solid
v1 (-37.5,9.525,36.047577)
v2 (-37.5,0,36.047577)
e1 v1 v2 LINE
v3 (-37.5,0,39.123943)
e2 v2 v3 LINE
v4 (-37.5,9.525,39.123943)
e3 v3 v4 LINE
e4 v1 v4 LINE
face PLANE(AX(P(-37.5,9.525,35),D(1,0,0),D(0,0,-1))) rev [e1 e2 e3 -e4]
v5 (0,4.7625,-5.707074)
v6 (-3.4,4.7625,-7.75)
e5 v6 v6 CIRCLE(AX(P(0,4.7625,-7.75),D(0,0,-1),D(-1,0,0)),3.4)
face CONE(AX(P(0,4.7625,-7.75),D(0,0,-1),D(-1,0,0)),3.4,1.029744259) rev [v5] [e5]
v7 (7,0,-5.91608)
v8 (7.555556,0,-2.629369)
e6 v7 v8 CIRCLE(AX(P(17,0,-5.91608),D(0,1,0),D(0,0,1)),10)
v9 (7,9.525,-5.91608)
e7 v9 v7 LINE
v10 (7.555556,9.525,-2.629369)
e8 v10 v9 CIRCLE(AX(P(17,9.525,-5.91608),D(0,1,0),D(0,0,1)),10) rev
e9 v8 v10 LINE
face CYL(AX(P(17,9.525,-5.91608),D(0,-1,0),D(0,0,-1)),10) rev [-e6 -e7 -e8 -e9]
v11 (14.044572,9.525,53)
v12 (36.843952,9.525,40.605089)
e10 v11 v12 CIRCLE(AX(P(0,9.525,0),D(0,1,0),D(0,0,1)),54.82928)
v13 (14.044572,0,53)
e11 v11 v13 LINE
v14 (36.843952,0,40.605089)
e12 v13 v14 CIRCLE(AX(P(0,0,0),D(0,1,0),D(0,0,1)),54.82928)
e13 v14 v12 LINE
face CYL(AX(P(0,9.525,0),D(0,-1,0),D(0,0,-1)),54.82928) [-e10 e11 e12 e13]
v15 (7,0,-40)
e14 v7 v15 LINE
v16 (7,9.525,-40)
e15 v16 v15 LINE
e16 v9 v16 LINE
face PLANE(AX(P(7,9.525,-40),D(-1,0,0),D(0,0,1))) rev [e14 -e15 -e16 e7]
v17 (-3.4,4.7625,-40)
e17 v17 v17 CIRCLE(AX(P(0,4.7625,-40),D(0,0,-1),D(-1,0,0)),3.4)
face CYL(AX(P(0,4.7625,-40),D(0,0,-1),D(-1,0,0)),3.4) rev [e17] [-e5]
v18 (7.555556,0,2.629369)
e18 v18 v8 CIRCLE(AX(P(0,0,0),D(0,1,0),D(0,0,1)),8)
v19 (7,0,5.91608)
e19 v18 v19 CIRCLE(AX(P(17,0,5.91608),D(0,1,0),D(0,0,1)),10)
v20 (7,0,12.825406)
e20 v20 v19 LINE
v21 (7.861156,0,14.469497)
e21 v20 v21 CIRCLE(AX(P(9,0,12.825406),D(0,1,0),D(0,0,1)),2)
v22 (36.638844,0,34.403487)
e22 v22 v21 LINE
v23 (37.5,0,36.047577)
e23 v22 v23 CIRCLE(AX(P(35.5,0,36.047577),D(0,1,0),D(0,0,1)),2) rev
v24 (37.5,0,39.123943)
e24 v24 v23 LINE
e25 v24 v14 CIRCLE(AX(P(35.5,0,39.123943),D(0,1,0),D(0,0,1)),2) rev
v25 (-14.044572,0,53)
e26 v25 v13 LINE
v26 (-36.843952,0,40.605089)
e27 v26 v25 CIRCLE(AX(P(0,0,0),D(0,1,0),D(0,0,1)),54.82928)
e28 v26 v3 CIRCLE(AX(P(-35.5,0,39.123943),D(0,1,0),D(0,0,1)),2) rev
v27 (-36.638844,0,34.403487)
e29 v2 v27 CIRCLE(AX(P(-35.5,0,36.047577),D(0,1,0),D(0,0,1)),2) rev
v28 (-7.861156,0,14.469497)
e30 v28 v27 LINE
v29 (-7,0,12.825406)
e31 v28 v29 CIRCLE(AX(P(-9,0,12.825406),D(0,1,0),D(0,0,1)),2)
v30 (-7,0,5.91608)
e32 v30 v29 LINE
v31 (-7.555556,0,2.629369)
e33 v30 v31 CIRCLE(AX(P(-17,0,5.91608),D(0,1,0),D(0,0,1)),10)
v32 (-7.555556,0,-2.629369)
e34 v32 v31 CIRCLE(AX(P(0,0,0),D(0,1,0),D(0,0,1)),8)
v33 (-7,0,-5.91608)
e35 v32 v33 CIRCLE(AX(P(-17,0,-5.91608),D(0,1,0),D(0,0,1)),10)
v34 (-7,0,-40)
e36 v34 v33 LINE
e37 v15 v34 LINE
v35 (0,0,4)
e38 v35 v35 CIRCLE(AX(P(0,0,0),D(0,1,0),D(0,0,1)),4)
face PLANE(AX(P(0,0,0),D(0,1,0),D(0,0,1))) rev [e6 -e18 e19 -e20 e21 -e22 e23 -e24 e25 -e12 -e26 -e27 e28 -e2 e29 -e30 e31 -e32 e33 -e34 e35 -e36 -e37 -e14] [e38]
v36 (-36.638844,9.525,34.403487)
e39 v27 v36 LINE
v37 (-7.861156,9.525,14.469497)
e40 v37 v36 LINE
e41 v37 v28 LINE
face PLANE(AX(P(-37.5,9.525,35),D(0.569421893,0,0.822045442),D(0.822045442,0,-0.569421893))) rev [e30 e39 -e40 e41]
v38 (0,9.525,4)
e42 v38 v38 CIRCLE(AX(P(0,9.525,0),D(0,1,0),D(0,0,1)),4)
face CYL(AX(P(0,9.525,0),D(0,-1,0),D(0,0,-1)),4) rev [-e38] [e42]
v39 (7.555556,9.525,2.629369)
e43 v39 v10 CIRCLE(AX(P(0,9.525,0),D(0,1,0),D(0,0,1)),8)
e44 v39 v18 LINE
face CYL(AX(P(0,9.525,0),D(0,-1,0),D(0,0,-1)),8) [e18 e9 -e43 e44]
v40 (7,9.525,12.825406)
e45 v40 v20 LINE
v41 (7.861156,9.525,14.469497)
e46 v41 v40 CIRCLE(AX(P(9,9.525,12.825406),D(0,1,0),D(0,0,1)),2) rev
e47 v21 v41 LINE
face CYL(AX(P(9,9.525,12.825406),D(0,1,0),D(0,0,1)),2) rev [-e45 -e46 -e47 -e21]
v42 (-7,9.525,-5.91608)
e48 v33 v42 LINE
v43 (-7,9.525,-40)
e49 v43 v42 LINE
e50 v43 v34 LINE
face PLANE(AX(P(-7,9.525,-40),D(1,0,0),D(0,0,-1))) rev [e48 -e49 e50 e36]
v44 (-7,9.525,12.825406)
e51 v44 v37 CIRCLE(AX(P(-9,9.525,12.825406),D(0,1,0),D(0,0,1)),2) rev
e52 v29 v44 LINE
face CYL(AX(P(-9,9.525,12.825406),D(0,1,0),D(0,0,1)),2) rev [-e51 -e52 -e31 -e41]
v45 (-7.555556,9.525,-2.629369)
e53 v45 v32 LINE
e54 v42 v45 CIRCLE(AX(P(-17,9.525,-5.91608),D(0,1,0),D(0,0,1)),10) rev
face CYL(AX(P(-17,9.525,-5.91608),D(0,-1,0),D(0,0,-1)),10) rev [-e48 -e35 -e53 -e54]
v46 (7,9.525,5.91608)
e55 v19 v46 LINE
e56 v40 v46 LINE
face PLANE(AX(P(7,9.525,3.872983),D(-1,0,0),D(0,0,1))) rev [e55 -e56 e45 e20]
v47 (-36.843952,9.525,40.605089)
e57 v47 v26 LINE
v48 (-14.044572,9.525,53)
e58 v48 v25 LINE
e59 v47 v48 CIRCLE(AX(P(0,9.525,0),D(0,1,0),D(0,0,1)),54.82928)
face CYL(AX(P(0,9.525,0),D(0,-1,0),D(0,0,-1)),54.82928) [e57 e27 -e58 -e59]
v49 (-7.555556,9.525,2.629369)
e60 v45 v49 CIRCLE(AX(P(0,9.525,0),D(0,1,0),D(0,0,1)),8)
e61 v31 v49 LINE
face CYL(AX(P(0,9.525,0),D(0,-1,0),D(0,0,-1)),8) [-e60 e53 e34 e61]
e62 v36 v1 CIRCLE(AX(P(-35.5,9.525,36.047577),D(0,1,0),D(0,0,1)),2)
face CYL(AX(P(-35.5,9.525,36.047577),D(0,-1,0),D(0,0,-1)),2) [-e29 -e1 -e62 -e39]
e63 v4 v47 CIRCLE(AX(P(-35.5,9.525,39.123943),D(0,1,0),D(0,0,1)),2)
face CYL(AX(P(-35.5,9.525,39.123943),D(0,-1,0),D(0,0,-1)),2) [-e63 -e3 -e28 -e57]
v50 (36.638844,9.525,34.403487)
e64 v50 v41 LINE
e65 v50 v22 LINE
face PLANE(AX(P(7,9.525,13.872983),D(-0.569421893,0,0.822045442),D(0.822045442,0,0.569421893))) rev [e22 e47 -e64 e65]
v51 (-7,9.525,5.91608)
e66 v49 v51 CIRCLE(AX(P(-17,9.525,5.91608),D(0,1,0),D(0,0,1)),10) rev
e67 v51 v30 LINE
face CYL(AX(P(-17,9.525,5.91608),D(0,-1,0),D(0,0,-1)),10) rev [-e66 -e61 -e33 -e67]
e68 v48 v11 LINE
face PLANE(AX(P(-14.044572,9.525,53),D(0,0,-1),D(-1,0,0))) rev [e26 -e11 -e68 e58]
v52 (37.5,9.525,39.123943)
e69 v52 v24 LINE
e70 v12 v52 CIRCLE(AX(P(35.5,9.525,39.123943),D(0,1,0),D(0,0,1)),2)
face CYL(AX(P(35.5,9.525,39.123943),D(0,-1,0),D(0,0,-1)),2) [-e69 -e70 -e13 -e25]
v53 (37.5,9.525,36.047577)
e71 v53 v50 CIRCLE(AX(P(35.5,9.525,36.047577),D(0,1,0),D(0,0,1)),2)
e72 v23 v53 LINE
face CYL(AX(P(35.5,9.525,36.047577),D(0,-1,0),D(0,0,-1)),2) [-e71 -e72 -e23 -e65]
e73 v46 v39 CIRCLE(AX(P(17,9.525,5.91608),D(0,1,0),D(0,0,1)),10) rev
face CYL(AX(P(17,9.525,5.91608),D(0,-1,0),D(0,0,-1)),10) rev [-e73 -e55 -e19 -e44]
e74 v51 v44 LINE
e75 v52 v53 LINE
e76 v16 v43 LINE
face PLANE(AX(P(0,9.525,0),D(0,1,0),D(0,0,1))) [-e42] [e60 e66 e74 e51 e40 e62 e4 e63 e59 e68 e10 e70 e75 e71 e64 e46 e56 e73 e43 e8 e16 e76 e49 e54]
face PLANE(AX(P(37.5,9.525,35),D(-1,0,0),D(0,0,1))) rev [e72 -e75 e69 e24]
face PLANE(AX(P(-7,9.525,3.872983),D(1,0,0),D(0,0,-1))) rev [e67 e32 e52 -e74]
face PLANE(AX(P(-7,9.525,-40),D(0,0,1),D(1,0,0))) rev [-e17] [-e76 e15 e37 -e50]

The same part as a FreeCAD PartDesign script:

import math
import FreeCAD as App
import Part
import Sketcher
Q = App.Units.Quantity


def edges_at(feature, points):
    """Names of the edges that pass closest to the given points."""
    edges = feature.Shape.Edges
    near = lambda p: min(range(len(edges)), key=lambda i: edges[i].distToShape(Part.Vertex(*p))[0])
    return sorted({f"Edge{near(p) + 1}" for p in points})

doc = App.newDocument("Part")
params = doc.addObject("Spreadsheet::Sheet", "Params")
for row, (alias, value) in enumerate([
    ("sketch1_diameter", "8 mm"),
    ("sketch1_radius", "8 mm"),
    ("sketch1_width", "14 mm"),
    ("sketch1_height", "10 mm"),
    ("sketch1_height2", "5 mm"),
    ("pad1_length", "9.525 mm"),
    ("fillet_radius", "10 mm"),
    ("sketch2_diameter", "6.8 mm"),
    ("hole_diameter", "6.8 mm"),
    ("hole_depth", "32.25 mm"),
    ("fillet2_radius", "2 mm"),
], start=1):
    params.set(f"A{row}", alias)
    params.set(f"B{row}", "=" + value)
    params.setAlias(f"B{row}", alias)

body = doc.addObject("PartDesign::Body", "Body")

# Sketch on XZ plane
sketch1 = body.newObject("Sketcher::SketchObject", "Sketch")
sketch1.AttachmentSupport = (doc.getObject("XZ_Plane"), [""])
sketch1.MapMode = "FlatFace"
sketch1.addGeometry([
    Part.LineSegment(App.Vector(7, -40, 0), App.Vector(-7, -40, 0)),  # 0
    Part.LineSegment(App.Vector(-7, -40, 0), App.Vector(-7, -3.9, 0)),  # 1
    Part.ArcOfCircle(Part.Circle(App.Vector(0, 0, 0), App.Vector(0, 0, 1), 8), math.radians(151), math.radians(209)),  # 2
    Part.LineSegment(App.Vector(-7, 3.9, 0), App.Vector(-7, 13.9, 0)),  # 3
    Part.LineSegment(App.Vector(-7, 13.9, 0), App.Vector(-37.5, 35, 0)),  # 4
    Part.LineSegment(App.Vector(-37.5, 35, 0), App.Vector(-37.5, 40, 0)),  # 5
    Part.ArcOfCircle(Part.Circle(App.Vector(0, 0, 0), App.Vector(0, 0, 1), 54.8), math.radians(105), math.radians(133)),  # 6
    Part.LineSegment(App.Vector(-14, 53, 0), App.Vector(14, 53, 0)),  # 7
    Part.ArcOfCircle(Part.Circle(App.Vector(0, 0, 0), App.Vector(0, 0, 1), 54.8), math.radians(47), math.radians(75)),  # 8
    Part.LineSegment(App.Vector(37.5, 40, 0), App.Vector(37.5, 35, 0)),  # 9
    Part.LineSegment(App.Vector(37.5, 35, 0), App.Vector(7, 13.9, 0)),  # 10
    Part.LineSegment(App.Vector(7, 13.9, 0), App.Vector(7, 3.9, 0)),  # 11
    Part.ArcOfCircle(Part.Circle(App.Vector(0, 0, 0), App.Vector(0, 0, 1), 8), math.radians(-29), math.radians(29)),  # 12
    Part.LineSegment(App.Vector(7, -3.9, 0), App.Vector(7, -40, 0)),  # 13
    Part.Circle(App.Vector(0, 0, 0), App.Vector(0, 0, 1), 4),  # 14
], False)
sketch1.addConstraint([
    Sketcher.Constraint("Coincident", 0, 2, 1, 1),
    Sketcher.Constraint("Coincident", 1, 2, 2, 2),
    Sketcher.Constraint("Coincident", 2, 1, 3, 1),
    Sketcher.Constraint("Coincident", 3, 2, 4, 1),
    Sketcher.Constraint("Coincident", 4, 2, 5, 1),
    Sketcher.Constraint("Coincident", 5, 2, 6, 2),
    Sketcher.Constraint("Coincident", 6, 1, 7, 1),
    Sketcher.Constraint("Coincident", 7, 2, 8, 2),
    Sketcher.Constraint("Coincident", 8, 1, 9, 1),
    Sketcher.Constraint("Coincident", 9, 2, 10, 1),
    Sketcher.Constraint("Coincident", 10, 2, 11, 1),
    Sketcher.Constraint("Coincident", 11, 2, 12, 2),
    Sketcher.Constraint("Coincident", 12, 1, 13, 1),
    Sketcher.Constraint("Coincident", 13, 2, 0, 1),
    Sketcher.Constraint("Horizontal", 0),
    Sketcher.Constraint("Vertical", 1),
    Sketcher.Constraint("Vertical", 3),
    Sketcher.Constraint("Vertical", 5),
    Sketcher.Constraint("Horizontal", 7),
    Sketcher.Constraint("Vertical", 9),
    Sketcher.Constraint("Vertical", 11),
    Sketcher.Constraint("Vertical", 13),
    Sketcher.Constraint("Coincident", 2, 3, -1, 1),
    Sketcher.Constraint("Coincident", 6, 3, -1, 1),
    Sketcher.Constraint("Coincident", 8, 3, -1, 1),
    Sketcher.Constraint("Coincident", 12, 3, -1, 1),
    Sketcher.Constraint("Coincident", 14, 3, -1, 1),
    Sketcher.Constraint("Equal", 6, 8),
    Sketcher.Constraint("Equal", 2, 12),
    Sketcher.Constraint("Symmetric", 4, 2, 9, 2, -2),
    Sketcher.Constraint("Symmetric", 3, 2, 10, 2, -2),
    Sketcher.Constraint("Horizontal", 1, 2, 12, 1),
    Sketcher.Constraint("Vertical", 1, 2, 2, 1),
    Sketcher.Constraint("Diameter", 14, Q("8 mm")),
    Sketcher.Constraint("Radius", 2, Q("8 mm")),
    Sketcher.Constraint("DistanceX", 0, 2, 0, 1, Q("14 mm")),
    Sketcher.Constraint("DistanceY", 3, 1, 3, 2, Q("10 mm")),
    Sketcher.Constraint("DistanceY", 5, 1, 5, 2, Q("5 mm")),
    Sketcher.Constraint("DistanceY", 0, 2, -1, 1, Q("40 mm")),
    Sketcher.Constraint("DistanceY", -1, 1, 4, 2, Q("35 mm")),
    Sketcher.Constraint("DistanceY", -1, 1, 6, 1, Q("53 mm")),
    Sketcher.Constraint("DistanceX", 4, 2, -1, 1, Q("37.5 mm")),
])
sketch1.setExpression("Constraints[33]", "Params.sketch1_diameter")
sketch1.setExpression("Constraints[34]", "Params.sketch1_radius")
sketch1.setExpression("Constraints[35]", "Params.sketch1_width")
sketch1.setExpression("Constraints[36]", "Params.sketch1_height")
sketch1.setExpression("Constraints[37]", "Params.sketch1_height2")
pad1 = body.newObject("PartDesign::Pad", "Pad")
pad1.Profile = sketch1
pad1.setExpression("Length", "Params.pad1_length")
pad1.Reversed = True
doc.recompute()

fillet = body.newObject("PartDesign::Fillet", "Fillet")
fillet.Base = (pad1, edges_at(pad1, [
    (7, 4.763, -3.873),
    (7, 4.763, 3.873),
    (-7, 4.763, 3.873),
    (-7, 4.763, -3.873),
]))
fillet.setExpression("Radius", "Params.fillet_radius")

# Sketch on XY plane
sketch2 = body.newObject("Sketcher::SketchObject", "Sketch001")
sketch2.AttachmentSupport = (doc.getObject("XY_Plane"), [""])
sketch2.MapMode = "FlatFace"
sketch2.AttachmentOffset = App.Placement(App.Vector(0, 0, -40), App.Rotation())
sketch2.addGeometry(Part.Circle(App.Vector(0, 4.8, 0), App.Vector(0, 0, 1), 3.4), False)
sketch2.addConstraint([
    Sketcher.Constraint("PointOnObject", 0, 3, -2),
    Sketcher.Constraint("Diameter", 0, Q("6.8 mm")),
    Sketcher.Constraint("DistanceY", -1, 1, 0, 3, Q("4.7625 mm")),
])
sketch2.setExpression("Constraints[1]", "Params.sketch2_diameter")
doc.recompute()
hole = body.newObject("PartDesign::Hole", "Hole")
hole.Profile = sketch2
hole.ThreadType = "None"
hole.setExpression("Diameter", "Params.hole_diameter")
hole.DepthType = "Dimension"
hole.setExpression("Depth", "Params.hole_depth")
hole.DrillPoint = "Angled"
hole.DrillPointAngle = 118
hole.Reversed = True
doc.recompute()

fillet2 = body.newObject("PartDesign::Fillet", "Fillet001")
fillet2.Base = (hole, edges_at(hole, [
    (7, 4.763, 13.873),
    (37.5, 4.763, 35),
    (37.5, 4.763, 40),
    (-37.5, 4.763, 40),
    (-37.5, 4.763, 35),
    (-7, 4.763, 13.873),
]))
fillet2.setExpression("Radius", "Params.fillet2_radius")

doc.recompute()
